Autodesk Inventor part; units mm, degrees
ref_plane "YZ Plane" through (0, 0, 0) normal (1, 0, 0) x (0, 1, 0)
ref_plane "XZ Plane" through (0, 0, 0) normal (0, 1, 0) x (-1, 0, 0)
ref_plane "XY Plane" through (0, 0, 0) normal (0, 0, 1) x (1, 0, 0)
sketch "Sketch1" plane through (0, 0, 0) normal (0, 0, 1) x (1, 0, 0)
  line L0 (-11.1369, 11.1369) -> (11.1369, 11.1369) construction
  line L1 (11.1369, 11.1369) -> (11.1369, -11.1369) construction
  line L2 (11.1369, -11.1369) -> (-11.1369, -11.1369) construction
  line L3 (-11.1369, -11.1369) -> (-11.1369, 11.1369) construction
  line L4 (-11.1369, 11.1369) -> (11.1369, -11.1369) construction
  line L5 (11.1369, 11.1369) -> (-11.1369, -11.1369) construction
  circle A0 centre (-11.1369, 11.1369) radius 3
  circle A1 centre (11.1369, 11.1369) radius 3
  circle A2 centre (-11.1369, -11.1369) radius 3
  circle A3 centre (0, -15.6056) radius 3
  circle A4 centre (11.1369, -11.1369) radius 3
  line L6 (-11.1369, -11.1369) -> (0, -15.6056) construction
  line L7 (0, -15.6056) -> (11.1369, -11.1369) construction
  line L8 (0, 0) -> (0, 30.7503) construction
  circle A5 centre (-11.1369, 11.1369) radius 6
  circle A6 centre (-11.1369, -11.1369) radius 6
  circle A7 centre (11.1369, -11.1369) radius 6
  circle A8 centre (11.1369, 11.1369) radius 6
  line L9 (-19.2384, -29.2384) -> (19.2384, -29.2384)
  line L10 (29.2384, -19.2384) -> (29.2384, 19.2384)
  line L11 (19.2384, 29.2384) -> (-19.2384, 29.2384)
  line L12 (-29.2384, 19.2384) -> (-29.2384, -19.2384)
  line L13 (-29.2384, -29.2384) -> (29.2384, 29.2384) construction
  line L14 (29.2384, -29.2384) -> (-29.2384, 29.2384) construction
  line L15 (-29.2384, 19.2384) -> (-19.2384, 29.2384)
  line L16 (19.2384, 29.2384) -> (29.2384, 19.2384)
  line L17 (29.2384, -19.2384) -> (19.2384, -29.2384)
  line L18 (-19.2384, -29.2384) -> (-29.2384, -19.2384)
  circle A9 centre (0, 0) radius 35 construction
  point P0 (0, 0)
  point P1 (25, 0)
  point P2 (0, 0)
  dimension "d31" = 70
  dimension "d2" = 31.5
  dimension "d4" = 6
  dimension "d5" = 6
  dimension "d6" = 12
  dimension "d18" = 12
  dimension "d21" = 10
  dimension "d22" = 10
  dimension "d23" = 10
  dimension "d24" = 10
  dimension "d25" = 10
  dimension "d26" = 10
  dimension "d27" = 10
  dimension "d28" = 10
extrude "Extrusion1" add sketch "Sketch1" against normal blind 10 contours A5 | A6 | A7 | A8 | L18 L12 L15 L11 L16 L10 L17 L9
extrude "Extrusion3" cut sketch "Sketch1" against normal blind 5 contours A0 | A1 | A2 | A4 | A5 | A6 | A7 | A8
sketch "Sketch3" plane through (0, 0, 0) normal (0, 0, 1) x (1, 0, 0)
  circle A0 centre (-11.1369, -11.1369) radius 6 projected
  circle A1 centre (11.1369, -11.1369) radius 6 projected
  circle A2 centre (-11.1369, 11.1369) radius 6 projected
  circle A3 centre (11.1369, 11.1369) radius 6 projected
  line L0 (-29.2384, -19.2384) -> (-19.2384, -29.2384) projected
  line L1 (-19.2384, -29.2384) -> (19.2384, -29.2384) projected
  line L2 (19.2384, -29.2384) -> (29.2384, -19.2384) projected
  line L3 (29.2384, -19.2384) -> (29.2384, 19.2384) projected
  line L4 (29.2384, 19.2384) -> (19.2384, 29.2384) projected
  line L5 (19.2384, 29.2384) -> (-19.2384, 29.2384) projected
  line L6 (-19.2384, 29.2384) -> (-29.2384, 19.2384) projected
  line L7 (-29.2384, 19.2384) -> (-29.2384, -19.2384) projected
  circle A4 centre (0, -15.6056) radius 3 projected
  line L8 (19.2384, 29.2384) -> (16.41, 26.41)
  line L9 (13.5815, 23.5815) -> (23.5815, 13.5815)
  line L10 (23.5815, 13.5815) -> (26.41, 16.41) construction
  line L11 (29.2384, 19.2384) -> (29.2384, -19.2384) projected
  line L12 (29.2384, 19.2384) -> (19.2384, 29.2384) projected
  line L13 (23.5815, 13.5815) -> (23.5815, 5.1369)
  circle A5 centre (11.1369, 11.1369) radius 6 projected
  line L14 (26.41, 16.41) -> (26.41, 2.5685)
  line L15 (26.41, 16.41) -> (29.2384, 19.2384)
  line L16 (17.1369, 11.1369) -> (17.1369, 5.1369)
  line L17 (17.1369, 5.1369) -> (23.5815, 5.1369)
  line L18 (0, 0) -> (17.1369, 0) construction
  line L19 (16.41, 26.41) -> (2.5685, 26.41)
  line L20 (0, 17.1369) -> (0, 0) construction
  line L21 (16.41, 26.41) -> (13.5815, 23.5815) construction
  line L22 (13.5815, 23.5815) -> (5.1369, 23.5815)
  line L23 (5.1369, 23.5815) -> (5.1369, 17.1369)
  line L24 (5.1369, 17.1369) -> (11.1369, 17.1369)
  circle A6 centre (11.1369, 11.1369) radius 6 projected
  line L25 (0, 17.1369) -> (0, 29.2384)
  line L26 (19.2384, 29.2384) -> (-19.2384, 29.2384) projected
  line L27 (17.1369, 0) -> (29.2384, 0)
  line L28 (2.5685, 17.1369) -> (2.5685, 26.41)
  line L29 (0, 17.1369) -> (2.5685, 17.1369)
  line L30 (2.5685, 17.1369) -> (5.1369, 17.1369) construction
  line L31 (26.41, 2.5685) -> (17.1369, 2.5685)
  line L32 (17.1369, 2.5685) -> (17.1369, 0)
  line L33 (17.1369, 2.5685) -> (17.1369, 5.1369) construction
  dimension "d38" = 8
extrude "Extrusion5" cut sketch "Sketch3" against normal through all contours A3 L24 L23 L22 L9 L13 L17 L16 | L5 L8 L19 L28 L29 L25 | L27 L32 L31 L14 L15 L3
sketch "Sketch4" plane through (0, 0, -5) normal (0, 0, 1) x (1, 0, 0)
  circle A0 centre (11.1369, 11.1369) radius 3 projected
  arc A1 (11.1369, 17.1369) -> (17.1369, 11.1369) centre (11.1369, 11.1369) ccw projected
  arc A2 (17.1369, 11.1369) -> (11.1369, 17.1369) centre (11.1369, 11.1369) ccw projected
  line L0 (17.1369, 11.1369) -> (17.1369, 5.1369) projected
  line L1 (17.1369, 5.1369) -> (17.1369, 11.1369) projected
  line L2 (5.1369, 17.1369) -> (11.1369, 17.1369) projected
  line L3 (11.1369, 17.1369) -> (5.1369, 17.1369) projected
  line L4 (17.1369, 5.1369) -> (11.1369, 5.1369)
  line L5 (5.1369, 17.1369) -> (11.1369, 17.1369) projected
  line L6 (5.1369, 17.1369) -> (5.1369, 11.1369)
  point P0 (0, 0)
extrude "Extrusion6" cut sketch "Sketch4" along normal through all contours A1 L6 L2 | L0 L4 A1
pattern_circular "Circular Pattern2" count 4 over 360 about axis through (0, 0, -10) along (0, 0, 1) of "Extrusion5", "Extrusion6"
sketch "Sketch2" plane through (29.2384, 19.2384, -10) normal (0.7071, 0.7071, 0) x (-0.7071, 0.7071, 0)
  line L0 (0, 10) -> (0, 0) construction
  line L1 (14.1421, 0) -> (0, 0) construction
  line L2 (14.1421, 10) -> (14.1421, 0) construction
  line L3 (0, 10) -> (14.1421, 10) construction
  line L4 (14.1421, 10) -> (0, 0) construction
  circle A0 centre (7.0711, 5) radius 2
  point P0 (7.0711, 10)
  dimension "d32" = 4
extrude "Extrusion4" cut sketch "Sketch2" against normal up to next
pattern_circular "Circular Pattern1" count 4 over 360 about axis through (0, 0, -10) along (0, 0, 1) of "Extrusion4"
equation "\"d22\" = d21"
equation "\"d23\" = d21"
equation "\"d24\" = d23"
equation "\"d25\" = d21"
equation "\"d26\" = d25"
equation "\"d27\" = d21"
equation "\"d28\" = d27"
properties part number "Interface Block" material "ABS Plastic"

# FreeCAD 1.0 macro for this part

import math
import FreeCAD as App
import Part
import Sketcher
from FreeCAD import Vector

doc = App.newDocument("Part")
body = doc.addObject("PartDesign::Body", "Body")

sketch1 = body.newObject("Sketcher::SketchObject", "Sketch")
sketch1.AttachmentSupport = (doc.getObject("XY_Plane"), [""])
sketch1.MapMode = "FlatFace"
sketch1.addGeometry([
    Part.LineSegment(Vector(-29.2, -19.2, 0), Vector(-19.2, -29.2, 0)),
    Part.LineSegment(Vector(-19.2, -29.2, 0), Vector(19.2, -29.2, 0)),
    Part.LineSegment(Vector(19.2, -29.2, 0), Vector(29.2, -19.2, 0)),
    Part.LineSegment(Vector(29.2, -19.2, 0), Vector(29.2, 19.2, 0)),
    Part.LineSegment(Vector(29.2, 19.2, 0), Vector(19.2, 29.2, 0)),
    Part.LineSegment(Vector(19.2, 29.2, 0), Vector(-19.2, 29.2, 0)),
    Part.LineSegment(Vector(-19.2, 29.2, 0), Vector(-29.2, 19.2, 0)),
    Part.LineSegment(Vector(-29.2, 19.2, 0), Vector(-29.2, -19.2, 0)),
    Part.Circle(Vector(-11.1, 11.1, 0), Vector(0, 0, 1), 3),
    Part.Circle(Vector(0, -15.6, 0), Vector(0, 0, 1), 3),
    Part.Circle(Vector(-11.1, -11.1, 0), Vector(0, 0, 1), 3),
    Part.Circle(Vector(11.1, -11.1, 0), Vector(0, 0, 1), 3),
    Part.Circle(Vector(11.1, 11.1, 0), Vector(0, 0, 1), 3),
], False)
sketch1.addConstraint([
    Sketcher.Constraint("Coincident", 0, 2, 1, 1),
    Sketcher.Constraint("Coincident", 1, 2, 2, 1),
    Sketcher.Constraint("Coincident", 2, 2, 3, 1),
    Sketcher.Constraint("Coincident", 3, 2, 4, 1),
    Sketcher.Constraint("Coincident", 4, 2, 5, 1),
    Sketcher.Constraint("Coincident", 5, 2, 6, 1),
    Sketcher.Constraint("Coincident", 6, 2, 7, 1),
    Sketcher.Constraint("Coincident", 7, 2, 0, 1),
    Sketcher.Constraint("Horizontal", 1),
    Sketcher.Constraint("Vertical", 3),
    Sketcher.Constraint("Horizontal", 5),
    Sketcher.Constraint("Vertical", 7),
    Sketcher.Constraint("Equal", 8, 9),
    Sketcher.Constraint("Equal", 9, 10),
    Sketcher.Constraint("Equal", 10, 11),
    Sketcher.Constraint("Equal", 11, 12),
    Sketcher.Constraint("Symmetric", 8, 3, 11, 3, -1, 1),
    Sketcher.Constraint("Symmetric", 10, 3, 12, 3, -1, 1),
    Sketcher.Constraint("Symmetric", 0, 2, 4, 2, -1, 1),
    Sketcher.Constraint("Symmetric", 2, 2, 6, 2, -1, 1),
    Sketcher.Constraint("Symmetric", 10, 3, 11, 3, -2),
    Sketcher.Constraint("PointOnObject", 9, 3, -2),
    Sketcher.Constraint("Perpendicular", 0, 2),
    Sketcher.Constraint("Perpendicular", 2, 4),
    Sketcher.Constraint("Perpendicular", 4, 6),
    Sketcher.Constraint("Horizontal", 3, 2, 6, 2),
    Sketcher.Constraint("Vertical", 1, 2, 4, 2),
    Sketcher.Constraint("Equal", 5, 3),
    Sketcher.Constraint("Diameter", 8, 6.0),
    Sketcher.Constraint("DistanceX", 1, 2, 2, 2, 10.0),
    Sketcher.Constraint("DistanceX", 1, 1, 1, 2, 38.4768),
    Sketcher.Constraint("DistanceX", 8, 3, -1, 1, 11.137),
    Sketcher.Constraint("DistanceY", -1, 1, 8, 3, 11.137),
    Sketcher.Constraint("DistanceY", 9, 3, 3, 2, 34.844),
])
pad1 = body.newObject("PartDesign::Pad", "Pad")
pad1.Profile = sketch1
pad1.Length = 10
pad1.Reversed = True

sketch2 = body.newObject("Sketcher::SketchObject", "Sketch001")
sketch2.AttachmentSupport = (doc.getObject("XY_Plane"), [""])
sketch2.MapMode = "FlatFace"
sketch2.addGeometry([
    Part.Circle(Vector(-11, 11, 0), Vector(0, 0, 1), 6),
    Part.Circle(Vector(11, 11, 0), Vector(0, 0, 1), 6),
    Part.Circle(Vector(-11, -11, 0), Vector(0, 0, 1), 6),
    Part.Circle(Vector(11, -11, 0), Vector(0, 0, 1), 6),
], False)
sketch2.addConstraint([
    Sketcher.Constraint("Equal", 0, 1),
    Sketcher.Constraint("Equal", 1, 2),
    Sketcher.Constraint("Equal", 2, 3),
    Sketcher.Constraint("Symmetric", 1, 3, 2, 3, -1, 1),
    Sketcher.Constraint("Symmetric", 0, 3, 3, 3, -1, 1),
    Sketcher.Constraint("Symmetric", 0, 3, 1, 3, -2),
    Sketcher.Constraint("Diameter", 0, 12.0),
    Sketcher.Constraint("DistanceX", 0, 3, -1, 1, 11.137),
    Sketcher.Constraint("DistanceY", -1, 1, 0, 3, 11.137),
])
pocket1 = body.newObject("PartDesign::Pocket", "Pocket")
pocket1.Profile = sketch2
pocket1.Length = 5

sketch3 = body.newObject("Sketcher::SketchObject", "Sketch002")
sketch3.AttachmentSupport = (doc.getObject("XY_Plane"), [""])
sketch3.MapMode = "FlatFace"
sketch3.addGeometry([
    Part.ArcOfCircle(Part.Circle(Vector(11.1, 11.1, 0), Vector(0, 0, 1), 6), math.radians(0), math.radians(90)),
    Part.LineSegment(Vector(17.1, 11.1, 0), Vector(17.1, 5.1, 0)),
    Part.LineSegment(Vector(17.1, 5.1, 0), Vector(23.6, 5.1, 0)),
    Part.LineSegment(Vector(23.6, 5.1, 0), Vector(23.6, 13.6, 0)),
    Part.LineSegment(Vector(23.6, 13.6, 0), Vector(13.6, 23.6, 0)),
    Part.LineSegment(Vector(13.6, 23.6, 0), Vector(5.1, 23.6, 0)),
    Part.LineSegment(Vector(5.1, 23.6, 0), Vector(5.1, 17.1, 0)),
    Part.LineSegment(Vector(5.1, 17.1, 0), Vector(11.1, 17.1, 0)),
    Part.LineSegment(Vector(19.2, 29.2, 0), Vector(0, 29.2, 0)),
    Part.LineSegment(Vector(0, 29.2, 0), Vector(0, 17.1, 0)),
    Part.LineSegment(Vector(0, 17.1, 0), Vector(2.6, 17.1, 0)),
    Part.LineSegment(Vector(2.6, 17.1, 0), Vector(2.6, 26.4, 0)),
    Part.LineSegment(Vector(2.6, 26.4, 0), Vector(16.4, 26.4, 0)),
    Part.LineSegment(Vector(16.4, 26.4, 0), Vector(19.2, 29.2, 0)),
    Part.LineSegment(Vector(17.1, 0, 0), Vector(29.2, 0, 0)),
    Part.LineSegment(Vector(29.2, 0, 0), Vector(29.2, 19.2, 0)),
    Part.LineSegment(Vector(29.2, 19.2, 0), Vector(26.4, 16.4, 0)),
    Part.LineSegment(Vector(26.4, 16.4, 0), Vector(26.4, 2.6, 0)),
    Part.LineSegment(Vector(26.4, 2.6, 0), Vector(17.1, 2.6, 0)),
    Part.LineSegment(Vector(17.1, 2.6, 0), Vector(17.1, 0, 0)),
], False)
sketch3.addConstraint([
    Sketcher.Constraint("Tangent", 0, 1, 1, 1),
    Sketcher.Constraint("Coincident", 1, 2, 2, 1),
    Sketcher.Constraint("Coincident", 2, 2, 3, 1),
    Sketcher.Constraint("Coincident", 3, 2, 4, 1),
    Sketcher.Constraint("Coincident", 4, 2, 5, 1),
    Sketcher.Constraint("Coincident", 5, 2, 6, 1),
    Sketcher.Constraint("Coincident", 6, 2, 7, 1),
    Sketcher.Constraint("Tangent", 7, 2, 0, 2),
    Sketcher.Constraint("Coincident", 8, 2, 9, 1),
    Sketcher.Constraint("Coincident", 9, 2, 10, 1),
    Sketcher.Constraint("Coincident", 10, 2, 11, 1),
    Sketcher.Constraint("Coincident", 11, 2, 12, 1),
    Sketcher.Constraint("Coincident", 12, 2, 13, 1),
    Sketcher.Constraint("Coincident", 13, 2, 8, 1),
    Sketcher.Constraint("Coincident", 14, 2, 15, 1),
    Sketcher.Constraint("Coincident", 15, 2, 16, 1),
    Sketcher.Constraint("Coincident", 16, 2, 17, 1),
    Sketcher.Constraint("Coincident", 17, 2, 18, 1),
    Sketcher.Constraint("Coincident", 18, 2, 19, 1),
    Sketcher.Constraint("Coincident", 19, 2, 14, 1),
    Sketcher.Constraint("Vertical", 1),
    Sketcher.Constraint("Horizontal", 2),
    Sketcher.Constraint("Vertical", 3),
    Sketcher.Constraint("Horizontal", 5),
    Sketcher.Constraint("Vertical", 6),
    Sketcher.Constraint("Horizontal", 7),
    Sketcher.Constraint("Horizontal", 8),
    Sketcher.Constraint("Vertical", 9),
    Sketcher.Constraint("Horizontal", 10),
    Sketcher.Constraint("Vertical", 11),
    Sketcher.Constraint("Horizontal", 12),
    Sketcher.Constraint("Horizontal", 14),
    Sketcher.Constraint("Vertical", 15),
    Sketcher.Constraint("Vertical", 17),
    Sketcher.Constraint("Horizontal", 18),
    Sketcher.Constraint("Vertical", 19),
    Sketcher.Constraint("PointOnObject", 8, 2, -2),
    Sketcher.Constraint("PointOnObject", 14, 2, -1),
    Sketcher.Constraint("Perpendicular", 4, 13),
    Sketcher.Constraint("Parallel", 13, 16),
    Sketcher.Constraint("Horizontal", 7, 2, 9, 2),
    Sketcher.Constraint("Vertical", 1, 2, 18, 2),
    Sketcher.Constraint("Equal", 7, 1),
    Sketcher.Constraint("Equal", 5, 3),
    Sketcher.Constraint("Equal", 2, 6),
    Sketcher.Constraint("Equal", 14, 9),
    Sketcher.Constraint("Equal", 18, 11),
    Sketcher.Constraint("Equal", 8, 15),
    Sketcher.Constraint("Equal", 12, 17),
    Sketcher.Constraint("Radius", 0, 6.0),
    Sketcher.Constraint("DistanceX", 7, 1, 7, 2, 6.0),
    Sketcher.Constraint("Distance", 13, 4.0),
    Sketcher.Constraint("DistanceX", 4, 2, 3, 2, 10.0),
    Sketcher.Constraint("DistanceX", 13, 2, 15, 2, 10.0),
    Sketcher.Constraint("DistanceY", 15, 2, 13, 2, 10.0),
    Sketcher.Constraint("DistanceX", 18, 2, 18, 1, 9.273),
    Sketcher.Constraint("DistanceY", -1, 1, 11, 2, 26.41),
    Sketcher.Constraint("DistanceX", 2, 1, 2, 2, 6.4446),
    Sketcher.Constraint("DistanceX", 10, 1, 10, 2, 2.5685),
])
pocket2 = body.newObject("PartDesign::Pocket", "Pocket001")
pocket2.Profile = sketch3
pocket2.Type = "ThroughAll"

sketch4 = body.newObject("Sketcher::SketchObject", "Sketch003")
sketch4.AttachmentSupport = (doc.getObject("XY_Plane"), [""])
sketch4.MapMode = "FlatFace"
sketch4.AttachmentOffset = App.Placement(Vector(0, 0, -5), App.Rotation())
sketch4.addGeometry([
    Part.ArcOfCircle(Part.Circle(Vector(11, 11, 0), Vector(0, 0, 1), 6), math.radians(90), math.radians(180)),
    Part.LineSegment(Vector(11, 17, 0), Vector(5, 17, 0)),
    Part.LineSegment(Vector(5, 17, 0), Vector(5, 11, 0)),
    Part.LineSegment(Vector(17, 5, 0), Vector(17, 11, 0)),
    Part.ArcOfCircle(Part.Circle(Vector(11, 11, 0), Vector(0, 0, 1), 6), math.radians(-90), math.radians(0)),
    Part.LineSegment(Vector(11, 5, 0), Vector(17, 5, 0)),
], False)
sketch4.addConstraint([
    Sketcher.Constraint("Tangent", 0, 1, 1, 1),
    Sketcher.Constraint("Coincident", 1, 2, 2, 1),
    Sketcher.Constraint("Tangent", 2, 2, 0, 2),
    Sketcher.Constraint("Tangent", 3, 2, 4, 2),
    Sketcher.Constraint("Tangent", 4, 1, 5, 1),
    Sketcher.Constraint("Coincident", 5, 2, 3, 1),
    Sketcher.Constraint("Horizontal", 1),
    Sketcher.Constraint("Vertical", 2),
    Sketcher.Constraint("Vertical", 3),
    Sketcher.Constraint("Horizontal", 5),
    Sketcher.Constraint("Coincident", 4, 3, 0, 3),
    Sketcher.Constraint("Equal", 0, 4),
    Sketcher.Constraint("Radius", 0, 6.0),
    Sketcher.Constraint("DistanceX", -1, 1, 0, 3, 11.137),
    Sketcher.Constraint("DistanceY", -1, 1, 0, 3, 11.137),
])
pocket3 = body.newObject("PartDesign::Pocket", "Pocket002")
pocket3.Profile = sketch4
pocket3.Type = "ThroughAll"
pocket3.Reversed = True
doc.recompute()

polarpattern = body.newObject("PartDesign::PolarPattern", "PolarPattern")
polarpattern.Originals = [pocket2, pocket3]
polarpattern.Axis = (doc.getObject("Z_Axis"), [""])
polarpattern.Angle = 360
polarpattern.Occurrences = 4
body.Tip = polarpattern

sketch5 = body.newObject("Sketcher::SketchObject", "Sketch004")
sketch5.Placement = App.Placement(Vector(29.2384, 19.2384, -10), App.Rotation(Vector(-0.707106781, 0.707106781, 0), Vector(0, 0, 0.999999999), Vector(0.707106781, 0.707106781, 0), "ZXY"))
sketch5.addGeometry(Part.Circle(Vector(7.1, 5, 0), Vector(0, 0, 1), 2), False)
sketch5.addConstraint([
    Sketcher.Constraint("Diameter", 0, 4.0),
    Sketcher.Constraint("DistanceY", -1, 1, 0, 3, 5.0),
    Sketcher.Constraint("DistanceX", -1, 1, 0, 3, 7.071),
])
pocket4 = body.newObject("PartDesign::Pocket", "Pocket003")
pocket4.Profile = sketch5
pocket4.Type = "UpToFirst"
doc.recompute()

polarpattern2 = body.newObject("PartDesign::PolarPattern", "PolarPattern001")
polarpattern2.Originals = [pocket4]
polarpattern2.Axis = (doc.getObject("Z_Axis"), [""])
polarpattern2.Angle = 360
polarpattern2.Occurrences = 4
body.Tip = polarpattern2

doc.recompute()
